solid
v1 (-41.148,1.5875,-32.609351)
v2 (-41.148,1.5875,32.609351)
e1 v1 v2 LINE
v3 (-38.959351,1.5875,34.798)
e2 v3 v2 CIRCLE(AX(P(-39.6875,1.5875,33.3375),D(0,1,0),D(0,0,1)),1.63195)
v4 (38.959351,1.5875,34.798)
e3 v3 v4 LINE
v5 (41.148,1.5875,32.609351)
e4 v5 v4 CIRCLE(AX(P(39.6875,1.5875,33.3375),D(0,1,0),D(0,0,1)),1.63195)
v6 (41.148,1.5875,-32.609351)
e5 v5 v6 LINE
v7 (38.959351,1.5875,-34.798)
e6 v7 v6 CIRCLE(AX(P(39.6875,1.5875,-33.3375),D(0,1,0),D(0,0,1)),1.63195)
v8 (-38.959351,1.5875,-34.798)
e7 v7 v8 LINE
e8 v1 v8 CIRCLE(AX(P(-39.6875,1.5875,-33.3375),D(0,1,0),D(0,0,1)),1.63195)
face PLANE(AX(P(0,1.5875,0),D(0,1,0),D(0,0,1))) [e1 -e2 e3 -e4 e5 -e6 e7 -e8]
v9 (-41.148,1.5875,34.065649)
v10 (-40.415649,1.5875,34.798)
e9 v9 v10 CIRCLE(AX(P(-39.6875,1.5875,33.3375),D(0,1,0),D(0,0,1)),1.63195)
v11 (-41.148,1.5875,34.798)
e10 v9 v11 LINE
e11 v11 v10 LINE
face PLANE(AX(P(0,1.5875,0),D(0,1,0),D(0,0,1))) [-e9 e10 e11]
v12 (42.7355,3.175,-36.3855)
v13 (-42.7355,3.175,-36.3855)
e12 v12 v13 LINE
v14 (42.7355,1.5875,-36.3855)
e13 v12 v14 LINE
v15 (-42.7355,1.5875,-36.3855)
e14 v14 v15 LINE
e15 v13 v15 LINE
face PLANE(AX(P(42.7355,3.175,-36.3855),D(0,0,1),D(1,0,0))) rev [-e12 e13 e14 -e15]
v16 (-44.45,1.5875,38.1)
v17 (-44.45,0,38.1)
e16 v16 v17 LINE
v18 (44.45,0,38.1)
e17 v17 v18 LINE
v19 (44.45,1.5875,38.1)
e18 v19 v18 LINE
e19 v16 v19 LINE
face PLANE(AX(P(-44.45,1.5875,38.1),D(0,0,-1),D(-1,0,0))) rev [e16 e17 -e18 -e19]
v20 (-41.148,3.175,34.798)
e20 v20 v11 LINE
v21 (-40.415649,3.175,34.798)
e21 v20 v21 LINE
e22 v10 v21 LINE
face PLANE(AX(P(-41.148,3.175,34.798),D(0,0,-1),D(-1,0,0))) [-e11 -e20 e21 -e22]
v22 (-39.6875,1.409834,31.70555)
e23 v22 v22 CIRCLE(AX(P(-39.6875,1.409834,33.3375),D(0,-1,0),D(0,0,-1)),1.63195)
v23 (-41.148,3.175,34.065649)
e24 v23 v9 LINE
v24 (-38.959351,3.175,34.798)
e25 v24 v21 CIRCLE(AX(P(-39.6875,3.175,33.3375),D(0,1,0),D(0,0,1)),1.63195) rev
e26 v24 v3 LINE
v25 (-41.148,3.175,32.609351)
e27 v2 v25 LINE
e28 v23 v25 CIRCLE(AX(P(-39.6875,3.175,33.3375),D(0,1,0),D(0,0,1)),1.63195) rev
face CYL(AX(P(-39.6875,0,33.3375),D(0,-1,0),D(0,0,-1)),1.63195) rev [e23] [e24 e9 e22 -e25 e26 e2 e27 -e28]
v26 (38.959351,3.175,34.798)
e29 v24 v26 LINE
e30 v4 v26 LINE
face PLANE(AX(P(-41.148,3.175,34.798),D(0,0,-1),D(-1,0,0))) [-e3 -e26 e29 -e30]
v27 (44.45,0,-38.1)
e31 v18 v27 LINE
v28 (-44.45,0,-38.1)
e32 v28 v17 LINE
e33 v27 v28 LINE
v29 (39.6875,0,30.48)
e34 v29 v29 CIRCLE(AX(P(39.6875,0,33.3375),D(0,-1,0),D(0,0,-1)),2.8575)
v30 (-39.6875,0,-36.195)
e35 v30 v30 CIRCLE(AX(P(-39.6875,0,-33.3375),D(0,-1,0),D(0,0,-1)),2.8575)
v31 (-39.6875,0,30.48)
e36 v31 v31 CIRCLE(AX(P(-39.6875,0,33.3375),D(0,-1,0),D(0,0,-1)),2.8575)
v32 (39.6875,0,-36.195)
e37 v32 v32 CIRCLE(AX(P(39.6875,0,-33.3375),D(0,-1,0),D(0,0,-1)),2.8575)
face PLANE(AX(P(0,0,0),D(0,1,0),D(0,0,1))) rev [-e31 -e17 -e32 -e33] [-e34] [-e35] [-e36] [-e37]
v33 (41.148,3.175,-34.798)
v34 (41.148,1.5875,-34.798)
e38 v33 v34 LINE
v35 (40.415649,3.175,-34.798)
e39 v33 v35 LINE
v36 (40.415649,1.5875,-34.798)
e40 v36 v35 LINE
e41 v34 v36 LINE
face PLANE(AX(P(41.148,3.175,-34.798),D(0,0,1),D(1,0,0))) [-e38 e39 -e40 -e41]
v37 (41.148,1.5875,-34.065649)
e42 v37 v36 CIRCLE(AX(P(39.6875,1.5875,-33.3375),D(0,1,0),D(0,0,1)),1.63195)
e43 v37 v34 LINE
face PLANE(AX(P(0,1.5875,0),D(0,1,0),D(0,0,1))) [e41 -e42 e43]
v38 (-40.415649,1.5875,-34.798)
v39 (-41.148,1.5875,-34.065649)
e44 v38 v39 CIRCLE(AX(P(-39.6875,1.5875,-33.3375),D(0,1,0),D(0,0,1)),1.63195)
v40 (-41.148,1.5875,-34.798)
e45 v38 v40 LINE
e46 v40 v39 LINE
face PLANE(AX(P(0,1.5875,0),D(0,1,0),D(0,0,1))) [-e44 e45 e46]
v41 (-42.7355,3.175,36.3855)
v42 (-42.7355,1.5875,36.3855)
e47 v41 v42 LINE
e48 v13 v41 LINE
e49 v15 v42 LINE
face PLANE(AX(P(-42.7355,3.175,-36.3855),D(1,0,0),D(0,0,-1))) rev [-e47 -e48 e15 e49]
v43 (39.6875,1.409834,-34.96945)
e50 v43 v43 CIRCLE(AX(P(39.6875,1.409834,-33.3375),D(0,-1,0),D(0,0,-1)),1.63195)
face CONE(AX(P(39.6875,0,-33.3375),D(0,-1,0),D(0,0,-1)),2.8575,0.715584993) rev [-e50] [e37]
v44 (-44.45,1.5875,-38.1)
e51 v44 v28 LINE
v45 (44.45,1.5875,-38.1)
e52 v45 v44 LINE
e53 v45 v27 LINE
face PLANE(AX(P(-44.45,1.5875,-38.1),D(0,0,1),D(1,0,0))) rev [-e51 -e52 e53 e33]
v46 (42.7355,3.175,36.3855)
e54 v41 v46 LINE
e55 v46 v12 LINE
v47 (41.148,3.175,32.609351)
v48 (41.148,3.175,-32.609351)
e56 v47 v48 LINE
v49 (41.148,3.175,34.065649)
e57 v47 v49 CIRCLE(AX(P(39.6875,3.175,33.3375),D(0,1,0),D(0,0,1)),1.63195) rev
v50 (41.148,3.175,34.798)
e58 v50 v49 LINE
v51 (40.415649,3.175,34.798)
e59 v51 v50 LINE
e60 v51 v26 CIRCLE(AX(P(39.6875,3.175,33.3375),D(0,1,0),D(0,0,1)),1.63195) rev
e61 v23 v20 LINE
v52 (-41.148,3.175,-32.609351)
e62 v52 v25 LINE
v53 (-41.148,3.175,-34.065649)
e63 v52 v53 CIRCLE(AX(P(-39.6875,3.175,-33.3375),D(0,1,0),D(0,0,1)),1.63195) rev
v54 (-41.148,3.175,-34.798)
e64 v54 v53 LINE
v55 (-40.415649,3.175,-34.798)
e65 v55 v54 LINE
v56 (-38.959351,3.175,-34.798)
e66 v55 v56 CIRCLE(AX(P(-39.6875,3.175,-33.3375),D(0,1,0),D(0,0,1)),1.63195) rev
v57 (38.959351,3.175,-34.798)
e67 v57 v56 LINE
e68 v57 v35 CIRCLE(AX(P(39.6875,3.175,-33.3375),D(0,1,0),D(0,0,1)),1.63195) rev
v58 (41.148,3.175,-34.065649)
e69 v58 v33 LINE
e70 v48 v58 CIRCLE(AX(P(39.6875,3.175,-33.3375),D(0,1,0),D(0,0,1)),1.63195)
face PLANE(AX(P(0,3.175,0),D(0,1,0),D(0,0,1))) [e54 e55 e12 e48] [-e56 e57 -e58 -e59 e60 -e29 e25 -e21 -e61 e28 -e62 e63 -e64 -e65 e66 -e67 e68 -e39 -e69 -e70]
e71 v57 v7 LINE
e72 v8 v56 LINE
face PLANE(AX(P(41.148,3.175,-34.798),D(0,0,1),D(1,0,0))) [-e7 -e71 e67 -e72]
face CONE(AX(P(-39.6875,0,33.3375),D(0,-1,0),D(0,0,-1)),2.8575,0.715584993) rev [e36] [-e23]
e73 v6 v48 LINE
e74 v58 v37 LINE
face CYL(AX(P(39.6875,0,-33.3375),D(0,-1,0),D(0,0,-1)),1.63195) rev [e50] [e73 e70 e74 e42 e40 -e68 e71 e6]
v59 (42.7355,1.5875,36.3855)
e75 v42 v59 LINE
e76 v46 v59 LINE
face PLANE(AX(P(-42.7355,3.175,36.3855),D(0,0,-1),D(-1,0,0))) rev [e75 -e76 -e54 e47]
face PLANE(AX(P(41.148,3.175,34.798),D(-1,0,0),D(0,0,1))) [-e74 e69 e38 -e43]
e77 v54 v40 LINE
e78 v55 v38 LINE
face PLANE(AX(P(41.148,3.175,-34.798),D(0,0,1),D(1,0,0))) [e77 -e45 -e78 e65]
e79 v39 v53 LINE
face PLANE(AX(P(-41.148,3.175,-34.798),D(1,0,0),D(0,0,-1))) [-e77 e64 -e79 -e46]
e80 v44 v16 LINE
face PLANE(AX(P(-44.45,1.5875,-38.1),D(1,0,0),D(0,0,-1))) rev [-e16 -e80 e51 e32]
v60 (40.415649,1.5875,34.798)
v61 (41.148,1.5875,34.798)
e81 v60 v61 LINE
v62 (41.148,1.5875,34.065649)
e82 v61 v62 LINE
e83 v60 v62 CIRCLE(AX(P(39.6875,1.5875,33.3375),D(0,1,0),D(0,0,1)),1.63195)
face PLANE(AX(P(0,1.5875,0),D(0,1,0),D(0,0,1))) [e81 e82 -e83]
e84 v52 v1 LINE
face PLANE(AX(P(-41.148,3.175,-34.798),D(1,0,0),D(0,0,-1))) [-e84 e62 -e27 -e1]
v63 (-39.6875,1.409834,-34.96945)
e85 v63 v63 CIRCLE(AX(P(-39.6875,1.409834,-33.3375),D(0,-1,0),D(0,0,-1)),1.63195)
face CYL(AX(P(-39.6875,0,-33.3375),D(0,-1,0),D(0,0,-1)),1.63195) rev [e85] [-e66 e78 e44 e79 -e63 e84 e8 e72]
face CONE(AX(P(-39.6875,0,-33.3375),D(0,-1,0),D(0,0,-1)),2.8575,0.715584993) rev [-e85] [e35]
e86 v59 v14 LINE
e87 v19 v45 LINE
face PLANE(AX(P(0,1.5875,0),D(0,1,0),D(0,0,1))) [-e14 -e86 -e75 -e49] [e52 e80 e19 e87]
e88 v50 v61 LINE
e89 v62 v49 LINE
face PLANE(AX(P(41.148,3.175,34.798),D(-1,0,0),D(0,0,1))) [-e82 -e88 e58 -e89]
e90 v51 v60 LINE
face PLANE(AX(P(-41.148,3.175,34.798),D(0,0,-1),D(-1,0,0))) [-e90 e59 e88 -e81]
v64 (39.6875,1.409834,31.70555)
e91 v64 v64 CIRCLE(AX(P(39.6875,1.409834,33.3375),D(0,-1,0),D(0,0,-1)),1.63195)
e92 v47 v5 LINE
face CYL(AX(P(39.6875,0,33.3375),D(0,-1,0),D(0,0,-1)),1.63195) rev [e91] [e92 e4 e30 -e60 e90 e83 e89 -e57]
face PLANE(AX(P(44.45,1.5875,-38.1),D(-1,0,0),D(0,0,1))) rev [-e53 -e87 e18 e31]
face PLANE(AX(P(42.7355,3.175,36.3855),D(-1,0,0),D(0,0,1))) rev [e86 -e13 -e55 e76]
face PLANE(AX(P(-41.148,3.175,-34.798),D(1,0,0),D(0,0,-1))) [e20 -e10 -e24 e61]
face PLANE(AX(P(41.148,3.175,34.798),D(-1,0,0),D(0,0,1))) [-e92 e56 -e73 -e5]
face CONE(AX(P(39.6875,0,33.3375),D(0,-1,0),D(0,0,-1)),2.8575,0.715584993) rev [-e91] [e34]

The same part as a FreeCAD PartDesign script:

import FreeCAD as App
import Part
import Sketcher

V = App.Vector
Q = App.Units.Quantity

doc = App.newDocument("Part")
body = doc.addObject("PartDesign::Body", "Body")

sketch1 = doc.addObject("Sketcher::SketchObject", "Sketch")
body.addObject(sketch1)
sketch1.AttachmentSupport = (doc.XZ_Plane, [""])
sketch1.MapMode = "FlatFace"
sketch1.addGeometry(Part.LineSegment(V(-44, -38, 0), V(-44, 38, 0)), False)
sketch1.addGeometry(Part.LineSegment(V(-44, 38, 0), V(44, 38, 0)), False)
sketch1.addGeometry(Part.LineSegment(V(44, 38, 0), V(44, -38, 0)), False)
sketch1.addGeometry(Part.LineSegment(V(44, -38, 0), V(-44, -38, 0)), False)
sketch1.addConstraint(Sketcher.Constraint("Coincident", 0, 2, 1, 1))
sketch1.addConstraint(Sketcher.Constraint("Coincident", 1, 2, 2, 1))
sketch1.addConstraint(Sketcher.Constraint("Coincident", 2, 2, 3, 1))
sketch1.addConstraint(Sketcher.Constraint("Coincident", 3, 2, 0, 1))
sketch1.addConstraint(Sketcher.Constraint("Vertical", 0))
sketch1.addConstraint(Sketcher.Constraint("Horizontal", 1))
sketch1.addConstraint(Sketcher.Constraint("Vertical", 2))
sketch1.addConstraint(Sketcher.Constraint("Horizontal", 3))
sketch1.addConstraint(Sketcher.Constraint("Symmetric", 0, 2, 2, 2, -1, 1))
sketch1.addConstraint(Sketcher.Constraint("DistanceY", 0, 1, 0, 2, Q("3 in")))
sketch1.addConstraint(Sketcher.Constraint("DistanceX", 1, 1, 1, 2, Q("3.5 in")))
pad1 = doc.addObject("PartDesign::Pad", "Pad")
body.addObject(pad1)
pad1.Profile = sketch1
pad1.Length = Q("0.0625 in")
pad1.Reversed = True

sketch2 = doc.addObject("Sketcher::SketchObject", "Sketch001")
body.addObject(sketch2)
sketch2.AttachmentSupport = (doc.XZ_Plane, [""])
sketch2.MapMode = "FlatFace"
sketch2.AttachmentOffset = App.Placement(V(0, 0, -0.0625 * 25.4), App.Rotation())
sketch2.addGeometry(Part.LineSegment(V(-43, -36, 0), V(-43, 36, 0)), False)
sketch2.addGeometry(Part.LineSegment(V(-43, 36, 0), V(43, 36, 0)), False)
sketch2.addGeometry(Part.LineSegment(V(43, 36, 0), V(43, -36, 0)), False)
sketch2.addGeometry(Part.LineSegment(V(43, -36, 0), V(-43, -36, 0)), False)
sketch2.addGeometry(Part.LineSegment(V(41, 35, 0), V(-41, 35, 0)), False)
sketch2.addGeometry(Part.LineSegment(V(-41, 35, 0), V(-41, -35, 0)), False)
sketch2.addGeometry(Part.LineSegment(V(-41, -35, 0), V(41, -35, 0)), False)
sketch2.addGeometry(Part.LineSegment(V(41, -35, 0), V(41, 35, 0)), False)
sketch2.addConstraint(Sketcher.Constraint("Coincident", 0, 2, 1, 1))
sketch2.addConstraint(Sketcher.Constraint("Coincident", 1, 2, 2, 1))
sketch2.addConstraint(Sketcher.Constraint("Coincident", 2, 2, 3, 1))
sketch2.addConstraint(Sketcher.Constraint("Coincident", 3, 2, 0, 1))
sketch2.addConstraint(Sketcher.Constraint("Coincident", 4, 2, 5, 1))
sketch2.addConstraint(Sketcher.Constraint("Coincident", 5, 2, 6, 1))
sketch2.addConstraint(Sketcher.Constraint("Coincident", 6, 2, 7, 1))
sketch2.addConstraint(Sketcher.Constraint("Coincident", 7, 2, 4, 1))
sketch2.addConstraint(Sketcher.Constraint("Vertical", 0))
sketch2.addConstraint(Sketcher.Constraint("Horizontal", 1))
sketch2.addConstraint(Sketcher.Constraint("Vertical", 2))
sketch2.addConstraint(Sketcher.Constraint("Horizontal", 3))
sketch2.addConstraint(Sketcher.Constraint("Horizontal", 4))
sketch2.addConstraint(Sketcher.Constraint("Vertical", 5))
sketch2.addConstraint(Sketcher.Constraint("Horizontal", 6))
sketch2.addConstraint(Sketcher.Constraint("Vertical", 7))
sketch2.addConstraint(Sketcher.Constraint("Symmetric", 0, 2, 2, 2, -1, 1))
sketch2.addConstraint(Sketcher.Constraint("Symmetric", 4, 2, 6, 2, -1, 1))
sketch2.addConstraint(Sketcher.Constraint("DistanceX", 4, 2, 4, 1, Q("3.24 in")))
sketch2.addConstraint(Sketcher.Constraint("DistanceY", 5, 2, 5, 1, Q("2.74 in")))
sketch2.addConstraint(Sketcher.Constraint("DistanceX", 1, 1, 1, 2, Q("3.365 in")))
sketch2.addConstraint(Sketcher.Constraint("DistanceY", 0, 1, 0, 2, Q("2.865 in")))
pad2 = doc.addObject("PartDesign::Pad", "Pad001")
body.addObject(pad2)
pad2.Profile = sketch2
pad2.Length = Q("0.0625 in")
pad2.Reversed = True

sketch3 = doc.addObject("Sketcher::SketchObject", "Sketch002")
body.addObject(sketch3)
sketch3.AttachmentSupport = (doc.XZ_Plane, [""])
sketch3.MapMode = "FlatFace"
sketch3.addGeometry(Part.Circle(V(39.7, -33.3, 0), V(0, 0, 1), 1.6), False)
sketch3.addGeometry(Part.Circle(V(-39.7, -33.3, 0), V(0, 0, 1), 1.6), False)
sketch3.addGeometry(Part.Circle(V(-39.7, 33.3, 0), V(0, 0, 1), 1.6), False)
sketch3.addGeometry(Part.Circle(V(39.7, 33.3, 0), V(0, 0, 1), 1.6), False)
sketch3.addConstraint(Sketcher.Constraint("Equal", 0, 1))
sketch3.addConstraint(Sketcher.Constraint("Equal", 1, 2))
sketch3.addConstraint(Sketcher.Constraint("Equal", 2, 3))
sketch3.addConstraint(Sketcher.Constraint("Symmetric", 0, 3, 2, 3, -1, 1))
sketch3.addConstraint(Sketcher.Constraint("Symmetric", 1, 3, 3, 3, -1, 1))
sketch3.addConstraint(Sketcher.Constraint("Symmetric", 0, 3, 1, 3, -2))
sketch3.addConstraint(Sketcher.Constraint("Diameter", 0, Q("0.1285 in")))
sketch3.addConstraint(Sketcher.Constraint("DistanceX", -1, 1, 0, 3, Q("1.5625 in")))
sketch3.addConstraint(Sketcher.Constraint("DistanceY", 0, 3, -1, 1, Q("1.3125 in")))
doc.recompute()
hole = doc.addObject("PartDesign::Hole", "Hole")
body.addObject(hole)
hole.Profile = sketch3
hole.ThreadType = "None"
hole.Diameter = Q("0.1285 in")
hole.DepthType = "ThroughAll"
hole.HoleCutType = "Countersink"
hole.HoleCutDiameter = Q("0.225 in")
hole.HoleCutCountersinkAngle = 82

doc.recompute()
